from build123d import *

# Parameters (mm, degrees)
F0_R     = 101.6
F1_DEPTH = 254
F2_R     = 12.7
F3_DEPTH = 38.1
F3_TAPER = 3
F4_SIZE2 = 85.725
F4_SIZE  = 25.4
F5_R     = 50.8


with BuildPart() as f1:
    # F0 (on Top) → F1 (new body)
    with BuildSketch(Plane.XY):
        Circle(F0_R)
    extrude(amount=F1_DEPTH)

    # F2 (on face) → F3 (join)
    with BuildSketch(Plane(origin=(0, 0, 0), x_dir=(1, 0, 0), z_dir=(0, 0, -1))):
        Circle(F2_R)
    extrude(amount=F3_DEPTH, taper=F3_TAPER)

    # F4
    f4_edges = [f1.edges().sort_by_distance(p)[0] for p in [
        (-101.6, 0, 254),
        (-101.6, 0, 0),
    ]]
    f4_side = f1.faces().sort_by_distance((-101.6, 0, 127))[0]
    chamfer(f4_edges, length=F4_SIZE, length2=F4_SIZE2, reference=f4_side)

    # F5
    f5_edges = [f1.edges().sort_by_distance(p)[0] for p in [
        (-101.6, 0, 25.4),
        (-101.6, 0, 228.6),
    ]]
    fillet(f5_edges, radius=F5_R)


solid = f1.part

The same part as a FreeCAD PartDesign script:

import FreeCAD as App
import Part
import Sketcher
Q = App.Units.Quantity


def edges_at(feature, points):
    """Names of the edges that pass closest to the given points."""
    edges = feature.Shape.Edges
    near = lambda p: min(range(len(edges)), key=lambda i: edges[i].distToShape(Part.Vertex(*p))[0])
    return sorted({f"Edge{near(p) + 1}" for p in points})

doc = App.newDocument("Part")
body = doc.addObject("PartDesign::Body", "Body")

# Sketch on XY plane
sketch1 = body.newObject("Sketcher::SketchObject", "Sketch")
sketch1.AttachmentSupport = (doc.getObject("XY_Plane"), [""])
sketch1.MapMode = "FlatFace"
sketch1.addGeometry(Part.Circle(App.Vector(0, 0, 0), App.Vector(0, 0, 1), 102), False)
sketch1.addConstraint([
    Sketcher.Constraint("Coincident", 0, 3, -1, 1),
    Sketcher.Constraint("Diameter", 0, Q("8 in")),
])
pad1 = body.newObject("PartDesign::Pad", "Pad")
pad1.Profile = sketch1
pad1.Length = Q("10 in")

# Sketch on XY plane
sketch2 = body.newObject("Sketcher::SketchObject", "Sketch001")
sketch2.AttachmentSupport = (doc.getObject("XY_Plane"), [""])
sketch2.MapMode = "FlatFace"
sketch2.addGeometry(Part.Circle(App.Vector(0, 0, 0), App.Vector(0, 0, 1), 13), False)
sketch2.addConstraint([
    Sketcher.Constraint("Coincident", 0, 3, -1, 1),
    Sketcher.Constraint("Diameter", 0, Q("1 in")),
])
pad2 = body.newObject("PartDesign::Pad", "Pad001")
pad2.Profile = sketch2
pad2.Length = Q("1.5 in")
pad2.Reversed = True
pad2.TaperAngle = -3
doc.recompute()

chamfer = body.newObject("PartDesign::Chamfer", "Chamfer")
chamfer.Base = (pad2, edges_at(pad2, [(-101.6, 0, 254), (-101.6, 0, 0)]))
chamfer.ChamferType = "Two distances"
chamfer.Size = Q("1 in")
chamfer.Size2 = Q("3.375 in")
doc.recompute()

fillet = body.newObject("PartDesign::Fillet", "Fillet")
fillet.Base = (chamfer, edges_at(chamfer, [(-101.6, 0, 25.4), (-101.6, 0, 228.6)]))
fillet.Radius = Q("2 in")

doc.recompute()
